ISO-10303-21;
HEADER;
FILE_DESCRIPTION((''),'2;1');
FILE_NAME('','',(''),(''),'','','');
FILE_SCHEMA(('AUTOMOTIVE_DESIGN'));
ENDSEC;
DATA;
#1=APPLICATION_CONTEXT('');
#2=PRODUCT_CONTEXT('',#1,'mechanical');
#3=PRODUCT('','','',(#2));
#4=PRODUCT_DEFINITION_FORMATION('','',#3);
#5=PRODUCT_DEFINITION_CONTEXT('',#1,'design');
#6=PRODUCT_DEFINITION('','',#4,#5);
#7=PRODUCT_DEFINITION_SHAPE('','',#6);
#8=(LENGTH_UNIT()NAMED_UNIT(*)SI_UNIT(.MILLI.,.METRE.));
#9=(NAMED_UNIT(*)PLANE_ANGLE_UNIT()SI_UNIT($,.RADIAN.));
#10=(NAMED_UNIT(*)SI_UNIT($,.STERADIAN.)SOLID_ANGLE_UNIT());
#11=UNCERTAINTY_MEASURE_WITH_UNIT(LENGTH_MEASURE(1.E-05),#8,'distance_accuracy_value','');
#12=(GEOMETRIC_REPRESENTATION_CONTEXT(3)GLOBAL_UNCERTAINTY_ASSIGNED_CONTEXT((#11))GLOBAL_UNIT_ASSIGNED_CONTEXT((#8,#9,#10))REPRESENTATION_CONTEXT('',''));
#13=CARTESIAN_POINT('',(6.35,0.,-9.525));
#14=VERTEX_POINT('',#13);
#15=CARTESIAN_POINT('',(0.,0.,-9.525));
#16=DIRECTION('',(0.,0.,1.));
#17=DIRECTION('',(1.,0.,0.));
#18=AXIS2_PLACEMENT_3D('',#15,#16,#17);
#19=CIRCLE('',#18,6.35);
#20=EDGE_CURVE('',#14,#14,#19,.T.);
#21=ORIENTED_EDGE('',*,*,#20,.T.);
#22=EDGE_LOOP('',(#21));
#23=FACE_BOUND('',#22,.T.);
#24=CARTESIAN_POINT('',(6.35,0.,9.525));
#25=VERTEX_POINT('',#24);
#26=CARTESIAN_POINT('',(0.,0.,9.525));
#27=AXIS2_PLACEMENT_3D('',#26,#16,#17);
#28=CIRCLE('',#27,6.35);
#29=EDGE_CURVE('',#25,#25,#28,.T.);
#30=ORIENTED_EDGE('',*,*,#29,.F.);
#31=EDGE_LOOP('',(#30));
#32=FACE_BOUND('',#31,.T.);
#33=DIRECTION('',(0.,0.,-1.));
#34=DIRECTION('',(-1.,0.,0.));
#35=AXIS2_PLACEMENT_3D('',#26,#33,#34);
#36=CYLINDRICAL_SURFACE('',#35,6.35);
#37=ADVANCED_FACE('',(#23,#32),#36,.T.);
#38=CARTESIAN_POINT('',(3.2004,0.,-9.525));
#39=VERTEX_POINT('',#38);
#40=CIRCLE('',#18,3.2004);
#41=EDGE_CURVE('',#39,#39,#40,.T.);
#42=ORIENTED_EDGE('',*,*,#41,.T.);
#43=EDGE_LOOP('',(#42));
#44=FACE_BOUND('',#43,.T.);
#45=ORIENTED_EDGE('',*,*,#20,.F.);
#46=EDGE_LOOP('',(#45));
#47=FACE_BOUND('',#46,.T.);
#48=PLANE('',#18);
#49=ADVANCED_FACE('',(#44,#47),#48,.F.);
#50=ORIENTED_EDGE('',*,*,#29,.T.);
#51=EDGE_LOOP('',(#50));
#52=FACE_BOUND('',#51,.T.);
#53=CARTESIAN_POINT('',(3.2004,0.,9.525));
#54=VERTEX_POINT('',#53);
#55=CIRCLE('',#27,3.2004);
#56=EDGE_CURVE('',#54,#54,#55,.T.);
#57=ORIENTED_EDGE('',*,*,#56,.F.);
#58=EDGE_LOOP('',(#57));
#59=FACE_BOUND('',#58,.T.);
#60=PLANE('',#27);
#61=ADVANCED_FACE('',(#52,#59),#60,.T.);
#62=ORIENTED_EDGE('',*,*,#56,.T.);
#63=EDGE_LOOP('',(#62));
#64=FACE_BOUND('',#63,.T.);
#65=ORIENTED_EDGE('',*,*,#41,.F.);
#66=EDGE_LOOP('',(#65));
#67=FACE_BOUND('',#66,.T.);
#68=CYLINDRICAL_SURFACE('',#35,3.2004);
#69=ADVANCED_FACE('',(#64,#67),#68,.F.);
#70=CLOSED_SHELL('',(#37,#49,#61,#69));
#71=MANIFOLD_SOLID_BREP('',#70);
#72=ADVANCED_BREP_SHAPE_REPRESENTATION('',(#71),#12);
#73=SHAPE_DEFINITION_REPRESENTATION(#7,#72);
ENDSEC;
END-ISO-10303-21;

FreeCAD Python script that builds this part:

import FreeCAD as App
import Part
import Sketcher

V = App.Vector
Q = App.Units.Quantity

doc = App.newDocument("Part")
body = doc.addObject("PartDesign::Body", "Body")

# Sketch on XY plane
sketch1 = doc.addObject("Sketcher::SketchObject", "Sketch")
body.addObject(sketch1)
sketch1.AttachmentSupport = (doc.XY_Plane, [""])
sketch1.MapMode = "FlatFace"
sketch1.addGeometry(Part.Circle(V(0, 0, 0), V(0, 0, 1), 6.3), False)
sketch1.addGeometry(Part.Circle(V(0, 0, 0), V(0, 0, 1), 3.2), False)
sketch1.addConstraint(Sketcher.Constraint("Coincident", 0, 3, -1, 1))
sketch1.addConstraint(Sketcher.Constraint("Coincident", 1, 3, -1, 1))
sketch1.addConstraint(Sketcher.Constraint("Diameter", 0, Q("0.5 in")))
sketch1.addConstraint(Sketcher.Constraint("Diameter", 1, Q("0.252 in")))
pad1 = doc.addObject("PartDesign::Pad", "Pad")
body.addObject(pad1)
pad1.Profile = sketch1
pad1.Type = "TwoLengths"
pad1.Length = Q("0.375 in")
pad1.Length2 = Q("0.375 in")

doc.recompute()
